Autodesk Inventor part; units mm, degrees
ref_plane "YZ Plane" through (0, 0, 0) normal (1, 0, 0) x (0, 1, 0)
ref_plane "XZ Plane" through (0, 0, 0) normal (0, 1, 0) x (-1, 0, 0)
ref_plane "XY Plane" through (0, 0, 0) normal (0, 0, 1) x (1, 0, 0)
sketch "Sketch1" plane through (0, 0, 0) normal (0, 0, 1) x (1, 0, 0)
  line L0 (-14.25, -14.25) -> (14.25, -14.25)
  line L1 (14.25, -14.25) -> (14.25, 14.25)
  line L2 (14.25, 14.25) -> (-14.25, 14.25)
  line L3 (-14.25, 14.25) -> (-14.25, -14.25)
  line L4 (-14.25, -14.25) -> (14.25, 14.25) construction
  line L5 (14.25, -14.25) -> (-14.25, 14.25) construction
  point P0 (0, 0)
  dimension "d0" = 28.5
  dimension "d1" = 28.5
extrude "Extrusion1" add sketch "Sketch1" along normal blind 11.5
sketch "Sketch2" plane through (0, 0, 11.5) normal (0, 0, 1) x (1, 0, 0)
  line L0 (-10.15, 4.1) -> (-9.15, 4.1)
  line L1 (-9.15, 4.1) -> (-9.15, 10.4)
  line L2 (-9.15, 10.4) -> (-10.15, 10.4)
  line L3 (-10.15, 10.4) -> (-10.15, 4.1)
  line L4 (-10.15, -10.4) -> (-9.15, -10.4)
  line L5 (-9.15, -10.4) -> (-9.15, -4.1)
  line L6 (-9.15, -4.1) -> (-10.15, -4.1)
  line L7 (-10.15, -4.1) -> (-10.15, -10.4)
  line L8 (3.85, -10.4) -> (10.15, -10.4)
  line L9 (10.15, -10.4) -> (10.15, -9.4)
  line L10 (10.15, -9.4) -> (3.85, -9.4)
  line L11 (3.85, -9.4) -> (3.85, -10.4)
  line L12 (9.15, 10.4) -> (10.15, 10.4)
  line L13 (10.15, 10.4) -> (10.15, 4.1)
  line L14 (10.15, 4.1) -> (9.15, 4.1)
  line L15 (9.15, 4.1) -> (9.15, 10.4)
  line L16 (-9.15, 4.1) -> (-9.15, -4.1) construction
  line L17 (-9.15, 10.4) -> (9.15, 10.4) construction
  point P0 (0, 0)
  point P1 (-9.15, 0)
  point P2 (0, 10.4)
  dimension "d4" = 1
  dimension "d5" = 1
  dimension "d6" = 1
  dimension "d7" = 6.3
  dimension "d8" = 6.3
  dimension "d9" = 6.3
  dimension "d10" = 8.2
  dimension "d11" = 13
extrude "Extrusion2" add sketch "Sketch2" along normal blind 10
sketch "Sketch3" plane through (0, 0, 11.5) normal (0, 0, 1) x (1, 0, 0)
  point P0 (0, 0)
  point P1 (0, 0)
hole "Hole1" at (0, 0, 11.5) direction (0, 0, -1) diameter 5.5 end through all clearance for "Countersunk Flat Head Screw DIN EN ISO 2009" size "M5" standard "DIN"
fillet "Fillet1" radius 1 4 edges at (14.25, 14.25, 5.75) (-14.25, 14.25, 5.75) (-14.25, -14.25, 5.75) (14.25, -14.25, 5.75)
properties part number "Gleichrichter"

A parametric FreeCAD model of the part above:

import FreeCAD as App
import Part
import Sketcher
Q = App.Units.Quantity


def edges_at(feature, points):
    """Names of the edges that pass closest to the given points."""
    edges = feature.Shape.Edges
    near = lambda p: min(range(len(edges)), key=lambda i: edges[i].distToShape(Part.Vertex(*p))[0])
    return sorted({f"Edge{near(p) + 1}" for p in points})


def add_polygon(sketch, points):
    """Adds a closed chain of lines whose ends are joined by coincident constraints."""
    first, n = sketch.GeometryCount, len(points)
    for a, b in zip(points, points[1:] + points[:1]):
        sketch.addGeometry(Part.LineSegment(App.Vector(*a, 0), App.Vector(*b, 0)), False)
    for i in range(n):
        sketch.addConstraint(Sketcher.Constraint("Coincident", first + i, 2, first + (i + 1) % n, 1))

doc = App.newDocument("Part")
params = doc.addObject("Spreadsheet::Sheet", "Params")
for row, (alias, value) in enumerate([
    ("sketch1_width", "28.5 mm"),
    ("pad1_length", "11.5 mm"),
    ("sketch2_width", "1 mm"),
    ("sketch2_width2", "6.3 mm"),
    ("pad2_length", "10 mm"),
    ("sketch3_diameter", "5.5 mm"),
    ("hole_diameter", "5.5 mm"),
    ("fillet_radius", "1 mm"),
], start=1):
    params.set(f"A{row}", alias)
    params.set(f"B{row}", "=" + value)
    params.setAlias(f"B{row}", alias)

body = doc.addObject("PartDesign::Body", "Body")

sketch1 = body.newObject("Sketcher::SketchObject", "Sketch")
sketch1.AttachmentSupport = (doc.getObject("XY_Plane"), [""])
sketch1.MapMode = "FlatFace"
add_polygon(sketch1, [(-14.25, 14.25), (-14.25, -14.25), (14.25, -14.25), (14.25, 14.25)])
sketch1.addConstraint(Sketcher.Constraint("Vertical", 0))
sketch1.addConstraint(Sketcher.Constraint("Horizontal", 1))
sketch1.addConstraint(Sketcher.Constraint("Vertical", 2))
sketch1.addConstraint(Sketcher.Constraint("Horizontal", 3))
sketch1.addConstraint(Sketcher.Constraint("Symmetric", 0, 2, 2, 2, -1, 1))
sketch1.addConstraint(Sketcher.Constraint("Equal", 3, 0))
sketch1.addConstraint(Sketcher.Constraint("DistanceX", 1, 1, 1, 2, Q("28.5 mm")))
sketch1.setExpression("Constraints[10]", "Params.sketch1_width")
pad1 = body.newObject("PartDesign::Pad", "Pad")
pad1.Profile = sketch1
pad1.setExpression("Length", "Params.pad1_length")

sketch2 = body.newObject("Sketcher::SketchObject", "Sketch001")
sketch2.AttachmentSupport = (doc.getObject("XY_Plane"), [""])
sketch2.MapMode = "FlatFace"
sketch2.AttachmentOffset = App.Placement(App.Vector(0, 0, 11.5), App.Rotation())
add_polygon(sketch2, [(-10.15, 10.4), (-10.15, 4.1), (-9.15, 4.1), (-9.15, 10.4)])
add_polygon(sketch2, [(-10.15, -4.1), (-10.15, -10.4), (-9.15, -10.4), (-9.15, -4.1)])
add_polygon(sketch2, [(3.85, -9.4), (3.85, -10.4), (10.15, -10.4), (10.15, -9.4)])
add_polygon(sketch2, [(10.15, 10.4), (9.15, 10.4), (9.15, 4.1), (10.15, 4.1)])
sketch2.addConstraint(Sketcher.Constraint("Vertical", 0))
sketch2.addConstraint(Sketcher.Constraint("Horizontal", 1))
sketch2.addConstraint(Sketcher.Constraint("Vertical", 2))
sketch2.addConstraint(Sketcher.Constraint("Horizontal", 3))
sketch2.addConstraint(Sketcher.Constraint("Vertical", 4))
sketch2.addConstraint(Sketcher.Constraint("Horizontal", 5))
sketch2.addConstraint(Sketcher.Constraint("Vertical", 6))
sketch2.addConstraint(Sketcher.Constraint("Horizontal", 7))
sketch2.addConstraint(Sketcher.Constraint("Vertical", 8))
sketch2.addConstraint(Sketcher.Constraint("Horizontal", 9))
sketch2.addConstraint(Sketcher.Constraint("Vertical", 10))
sketch2.addConstraint(Sketcher.Constraint("Horizontal", 11))
sketch2.addConstraint(Sketcher.Constraint("Horizontal", 12))
sketch2.addConstraint(Sketcher.Constraint("Vertical", 13))
sketch2.addConstraint(Sketcher.Constraint("Horizontal", 14))
sketch2.addConstraint(Sketcher.Constraint("Vertical", 15))
sketch2.addConstraint(Sketcher.Constraint("Symmetric", 3, 2, 9, 2, -1, 1))
sketch2.addConstraint(Sketcher.Constraint("Symmetric", 5, 2, 12, 2, -1, 1))
sketch2.addConstraint(Sketcher.Constraint("Symmetric", 7, 2, 14, 2, -1, 1))
sketch2.addConstraint(Sketcher.Constraint("Symmetric", 4, 2, 9, 2, -2))
sketch2.addConstraint(Sketcher.Constraint("Symmetric", 1, 2, 13, 2, -2))
sketch2.addConstraint(Sketcher.Constraint("Equal", 11, 0))
sketch2.addConstraint(Sketcher.Constraint("Equal", 14, 8))
sketch2.addConstraint(Sketcher.Constraint("DistanceX", 1, 1, 1, 2, Q("1 mm")))
sketch2.addConstraint(Sketcher.Constraint("DistanceX", 9, 1, 9, 2, Q("6.3 mm")))
sketch2.addConstraint(Sketcher.Constraint("DistanceX", 5, 2, 8, 2, Q("13 mm")))
sketch2.addConstraint(Sketcher.Constraint("DistanceY", 6, 2, 1, 2, Q("8.2 mm")))
sketch2.setExpression("Constraints[39]", "Params.sketch2_width")
sketch2.setExpression("Constraints[40]", "Params.sketch2_width2")
pad2 = body.newObject("PartDesign::Pad", "Pad001")
pad2.Profile = sketch2
pad2.setExpression("Length", "Params.pad2_length")

sketch3 = body.newObject("Sketcher::SketchObject", "Sketch002")
sketch3.AttachmentSupport = (doc.getObject("XY_Plane"), [""])
sketch3.MapMode = "FlatFace"
sketch3.AttachmentOffset = App.Placement(App.Vector(0, 0, 11.5), App.Rotation())
sketch3.addGeometry(Part.Circle(App.Vector(0, 0, 0), App.Vector(0, 0, 1), 2.75), False)
sketch3.addConstraint(Sketcher.Constraint("Coincident", 0, 3, -1, 1))
sketch3.addConstraint(Sketcher.Constraint("Diameter", 0, Q("5.5 mm")))
sketch3.setExpression("Constraints[1]", "Params.sketch3_diameter")
doc.recompute()
hole = body.newObject("PartDesign::Hole", "Hole")
hole.Profile = sketch3
hole.ThreadType = "None"
hole.setExpression("Diameter", "Params.hole_diameter")
hole.DepthType = "ThroughAll"
doc.recompute()

fillet = body.newObject("PartDesign::Fillet", "Fillet")
fillet.Base = (hole, edges_at(hole, [
    (14.25, 14.25, 5.75),
    (-14.25, 14.25, 5.75),
    (-14.25, -14.25, 5.75),
    (14.25, -14.25, 5.75),
]))
fillet.setExpression("Radius", "Params.fillet_radius")

doc.recompute()
